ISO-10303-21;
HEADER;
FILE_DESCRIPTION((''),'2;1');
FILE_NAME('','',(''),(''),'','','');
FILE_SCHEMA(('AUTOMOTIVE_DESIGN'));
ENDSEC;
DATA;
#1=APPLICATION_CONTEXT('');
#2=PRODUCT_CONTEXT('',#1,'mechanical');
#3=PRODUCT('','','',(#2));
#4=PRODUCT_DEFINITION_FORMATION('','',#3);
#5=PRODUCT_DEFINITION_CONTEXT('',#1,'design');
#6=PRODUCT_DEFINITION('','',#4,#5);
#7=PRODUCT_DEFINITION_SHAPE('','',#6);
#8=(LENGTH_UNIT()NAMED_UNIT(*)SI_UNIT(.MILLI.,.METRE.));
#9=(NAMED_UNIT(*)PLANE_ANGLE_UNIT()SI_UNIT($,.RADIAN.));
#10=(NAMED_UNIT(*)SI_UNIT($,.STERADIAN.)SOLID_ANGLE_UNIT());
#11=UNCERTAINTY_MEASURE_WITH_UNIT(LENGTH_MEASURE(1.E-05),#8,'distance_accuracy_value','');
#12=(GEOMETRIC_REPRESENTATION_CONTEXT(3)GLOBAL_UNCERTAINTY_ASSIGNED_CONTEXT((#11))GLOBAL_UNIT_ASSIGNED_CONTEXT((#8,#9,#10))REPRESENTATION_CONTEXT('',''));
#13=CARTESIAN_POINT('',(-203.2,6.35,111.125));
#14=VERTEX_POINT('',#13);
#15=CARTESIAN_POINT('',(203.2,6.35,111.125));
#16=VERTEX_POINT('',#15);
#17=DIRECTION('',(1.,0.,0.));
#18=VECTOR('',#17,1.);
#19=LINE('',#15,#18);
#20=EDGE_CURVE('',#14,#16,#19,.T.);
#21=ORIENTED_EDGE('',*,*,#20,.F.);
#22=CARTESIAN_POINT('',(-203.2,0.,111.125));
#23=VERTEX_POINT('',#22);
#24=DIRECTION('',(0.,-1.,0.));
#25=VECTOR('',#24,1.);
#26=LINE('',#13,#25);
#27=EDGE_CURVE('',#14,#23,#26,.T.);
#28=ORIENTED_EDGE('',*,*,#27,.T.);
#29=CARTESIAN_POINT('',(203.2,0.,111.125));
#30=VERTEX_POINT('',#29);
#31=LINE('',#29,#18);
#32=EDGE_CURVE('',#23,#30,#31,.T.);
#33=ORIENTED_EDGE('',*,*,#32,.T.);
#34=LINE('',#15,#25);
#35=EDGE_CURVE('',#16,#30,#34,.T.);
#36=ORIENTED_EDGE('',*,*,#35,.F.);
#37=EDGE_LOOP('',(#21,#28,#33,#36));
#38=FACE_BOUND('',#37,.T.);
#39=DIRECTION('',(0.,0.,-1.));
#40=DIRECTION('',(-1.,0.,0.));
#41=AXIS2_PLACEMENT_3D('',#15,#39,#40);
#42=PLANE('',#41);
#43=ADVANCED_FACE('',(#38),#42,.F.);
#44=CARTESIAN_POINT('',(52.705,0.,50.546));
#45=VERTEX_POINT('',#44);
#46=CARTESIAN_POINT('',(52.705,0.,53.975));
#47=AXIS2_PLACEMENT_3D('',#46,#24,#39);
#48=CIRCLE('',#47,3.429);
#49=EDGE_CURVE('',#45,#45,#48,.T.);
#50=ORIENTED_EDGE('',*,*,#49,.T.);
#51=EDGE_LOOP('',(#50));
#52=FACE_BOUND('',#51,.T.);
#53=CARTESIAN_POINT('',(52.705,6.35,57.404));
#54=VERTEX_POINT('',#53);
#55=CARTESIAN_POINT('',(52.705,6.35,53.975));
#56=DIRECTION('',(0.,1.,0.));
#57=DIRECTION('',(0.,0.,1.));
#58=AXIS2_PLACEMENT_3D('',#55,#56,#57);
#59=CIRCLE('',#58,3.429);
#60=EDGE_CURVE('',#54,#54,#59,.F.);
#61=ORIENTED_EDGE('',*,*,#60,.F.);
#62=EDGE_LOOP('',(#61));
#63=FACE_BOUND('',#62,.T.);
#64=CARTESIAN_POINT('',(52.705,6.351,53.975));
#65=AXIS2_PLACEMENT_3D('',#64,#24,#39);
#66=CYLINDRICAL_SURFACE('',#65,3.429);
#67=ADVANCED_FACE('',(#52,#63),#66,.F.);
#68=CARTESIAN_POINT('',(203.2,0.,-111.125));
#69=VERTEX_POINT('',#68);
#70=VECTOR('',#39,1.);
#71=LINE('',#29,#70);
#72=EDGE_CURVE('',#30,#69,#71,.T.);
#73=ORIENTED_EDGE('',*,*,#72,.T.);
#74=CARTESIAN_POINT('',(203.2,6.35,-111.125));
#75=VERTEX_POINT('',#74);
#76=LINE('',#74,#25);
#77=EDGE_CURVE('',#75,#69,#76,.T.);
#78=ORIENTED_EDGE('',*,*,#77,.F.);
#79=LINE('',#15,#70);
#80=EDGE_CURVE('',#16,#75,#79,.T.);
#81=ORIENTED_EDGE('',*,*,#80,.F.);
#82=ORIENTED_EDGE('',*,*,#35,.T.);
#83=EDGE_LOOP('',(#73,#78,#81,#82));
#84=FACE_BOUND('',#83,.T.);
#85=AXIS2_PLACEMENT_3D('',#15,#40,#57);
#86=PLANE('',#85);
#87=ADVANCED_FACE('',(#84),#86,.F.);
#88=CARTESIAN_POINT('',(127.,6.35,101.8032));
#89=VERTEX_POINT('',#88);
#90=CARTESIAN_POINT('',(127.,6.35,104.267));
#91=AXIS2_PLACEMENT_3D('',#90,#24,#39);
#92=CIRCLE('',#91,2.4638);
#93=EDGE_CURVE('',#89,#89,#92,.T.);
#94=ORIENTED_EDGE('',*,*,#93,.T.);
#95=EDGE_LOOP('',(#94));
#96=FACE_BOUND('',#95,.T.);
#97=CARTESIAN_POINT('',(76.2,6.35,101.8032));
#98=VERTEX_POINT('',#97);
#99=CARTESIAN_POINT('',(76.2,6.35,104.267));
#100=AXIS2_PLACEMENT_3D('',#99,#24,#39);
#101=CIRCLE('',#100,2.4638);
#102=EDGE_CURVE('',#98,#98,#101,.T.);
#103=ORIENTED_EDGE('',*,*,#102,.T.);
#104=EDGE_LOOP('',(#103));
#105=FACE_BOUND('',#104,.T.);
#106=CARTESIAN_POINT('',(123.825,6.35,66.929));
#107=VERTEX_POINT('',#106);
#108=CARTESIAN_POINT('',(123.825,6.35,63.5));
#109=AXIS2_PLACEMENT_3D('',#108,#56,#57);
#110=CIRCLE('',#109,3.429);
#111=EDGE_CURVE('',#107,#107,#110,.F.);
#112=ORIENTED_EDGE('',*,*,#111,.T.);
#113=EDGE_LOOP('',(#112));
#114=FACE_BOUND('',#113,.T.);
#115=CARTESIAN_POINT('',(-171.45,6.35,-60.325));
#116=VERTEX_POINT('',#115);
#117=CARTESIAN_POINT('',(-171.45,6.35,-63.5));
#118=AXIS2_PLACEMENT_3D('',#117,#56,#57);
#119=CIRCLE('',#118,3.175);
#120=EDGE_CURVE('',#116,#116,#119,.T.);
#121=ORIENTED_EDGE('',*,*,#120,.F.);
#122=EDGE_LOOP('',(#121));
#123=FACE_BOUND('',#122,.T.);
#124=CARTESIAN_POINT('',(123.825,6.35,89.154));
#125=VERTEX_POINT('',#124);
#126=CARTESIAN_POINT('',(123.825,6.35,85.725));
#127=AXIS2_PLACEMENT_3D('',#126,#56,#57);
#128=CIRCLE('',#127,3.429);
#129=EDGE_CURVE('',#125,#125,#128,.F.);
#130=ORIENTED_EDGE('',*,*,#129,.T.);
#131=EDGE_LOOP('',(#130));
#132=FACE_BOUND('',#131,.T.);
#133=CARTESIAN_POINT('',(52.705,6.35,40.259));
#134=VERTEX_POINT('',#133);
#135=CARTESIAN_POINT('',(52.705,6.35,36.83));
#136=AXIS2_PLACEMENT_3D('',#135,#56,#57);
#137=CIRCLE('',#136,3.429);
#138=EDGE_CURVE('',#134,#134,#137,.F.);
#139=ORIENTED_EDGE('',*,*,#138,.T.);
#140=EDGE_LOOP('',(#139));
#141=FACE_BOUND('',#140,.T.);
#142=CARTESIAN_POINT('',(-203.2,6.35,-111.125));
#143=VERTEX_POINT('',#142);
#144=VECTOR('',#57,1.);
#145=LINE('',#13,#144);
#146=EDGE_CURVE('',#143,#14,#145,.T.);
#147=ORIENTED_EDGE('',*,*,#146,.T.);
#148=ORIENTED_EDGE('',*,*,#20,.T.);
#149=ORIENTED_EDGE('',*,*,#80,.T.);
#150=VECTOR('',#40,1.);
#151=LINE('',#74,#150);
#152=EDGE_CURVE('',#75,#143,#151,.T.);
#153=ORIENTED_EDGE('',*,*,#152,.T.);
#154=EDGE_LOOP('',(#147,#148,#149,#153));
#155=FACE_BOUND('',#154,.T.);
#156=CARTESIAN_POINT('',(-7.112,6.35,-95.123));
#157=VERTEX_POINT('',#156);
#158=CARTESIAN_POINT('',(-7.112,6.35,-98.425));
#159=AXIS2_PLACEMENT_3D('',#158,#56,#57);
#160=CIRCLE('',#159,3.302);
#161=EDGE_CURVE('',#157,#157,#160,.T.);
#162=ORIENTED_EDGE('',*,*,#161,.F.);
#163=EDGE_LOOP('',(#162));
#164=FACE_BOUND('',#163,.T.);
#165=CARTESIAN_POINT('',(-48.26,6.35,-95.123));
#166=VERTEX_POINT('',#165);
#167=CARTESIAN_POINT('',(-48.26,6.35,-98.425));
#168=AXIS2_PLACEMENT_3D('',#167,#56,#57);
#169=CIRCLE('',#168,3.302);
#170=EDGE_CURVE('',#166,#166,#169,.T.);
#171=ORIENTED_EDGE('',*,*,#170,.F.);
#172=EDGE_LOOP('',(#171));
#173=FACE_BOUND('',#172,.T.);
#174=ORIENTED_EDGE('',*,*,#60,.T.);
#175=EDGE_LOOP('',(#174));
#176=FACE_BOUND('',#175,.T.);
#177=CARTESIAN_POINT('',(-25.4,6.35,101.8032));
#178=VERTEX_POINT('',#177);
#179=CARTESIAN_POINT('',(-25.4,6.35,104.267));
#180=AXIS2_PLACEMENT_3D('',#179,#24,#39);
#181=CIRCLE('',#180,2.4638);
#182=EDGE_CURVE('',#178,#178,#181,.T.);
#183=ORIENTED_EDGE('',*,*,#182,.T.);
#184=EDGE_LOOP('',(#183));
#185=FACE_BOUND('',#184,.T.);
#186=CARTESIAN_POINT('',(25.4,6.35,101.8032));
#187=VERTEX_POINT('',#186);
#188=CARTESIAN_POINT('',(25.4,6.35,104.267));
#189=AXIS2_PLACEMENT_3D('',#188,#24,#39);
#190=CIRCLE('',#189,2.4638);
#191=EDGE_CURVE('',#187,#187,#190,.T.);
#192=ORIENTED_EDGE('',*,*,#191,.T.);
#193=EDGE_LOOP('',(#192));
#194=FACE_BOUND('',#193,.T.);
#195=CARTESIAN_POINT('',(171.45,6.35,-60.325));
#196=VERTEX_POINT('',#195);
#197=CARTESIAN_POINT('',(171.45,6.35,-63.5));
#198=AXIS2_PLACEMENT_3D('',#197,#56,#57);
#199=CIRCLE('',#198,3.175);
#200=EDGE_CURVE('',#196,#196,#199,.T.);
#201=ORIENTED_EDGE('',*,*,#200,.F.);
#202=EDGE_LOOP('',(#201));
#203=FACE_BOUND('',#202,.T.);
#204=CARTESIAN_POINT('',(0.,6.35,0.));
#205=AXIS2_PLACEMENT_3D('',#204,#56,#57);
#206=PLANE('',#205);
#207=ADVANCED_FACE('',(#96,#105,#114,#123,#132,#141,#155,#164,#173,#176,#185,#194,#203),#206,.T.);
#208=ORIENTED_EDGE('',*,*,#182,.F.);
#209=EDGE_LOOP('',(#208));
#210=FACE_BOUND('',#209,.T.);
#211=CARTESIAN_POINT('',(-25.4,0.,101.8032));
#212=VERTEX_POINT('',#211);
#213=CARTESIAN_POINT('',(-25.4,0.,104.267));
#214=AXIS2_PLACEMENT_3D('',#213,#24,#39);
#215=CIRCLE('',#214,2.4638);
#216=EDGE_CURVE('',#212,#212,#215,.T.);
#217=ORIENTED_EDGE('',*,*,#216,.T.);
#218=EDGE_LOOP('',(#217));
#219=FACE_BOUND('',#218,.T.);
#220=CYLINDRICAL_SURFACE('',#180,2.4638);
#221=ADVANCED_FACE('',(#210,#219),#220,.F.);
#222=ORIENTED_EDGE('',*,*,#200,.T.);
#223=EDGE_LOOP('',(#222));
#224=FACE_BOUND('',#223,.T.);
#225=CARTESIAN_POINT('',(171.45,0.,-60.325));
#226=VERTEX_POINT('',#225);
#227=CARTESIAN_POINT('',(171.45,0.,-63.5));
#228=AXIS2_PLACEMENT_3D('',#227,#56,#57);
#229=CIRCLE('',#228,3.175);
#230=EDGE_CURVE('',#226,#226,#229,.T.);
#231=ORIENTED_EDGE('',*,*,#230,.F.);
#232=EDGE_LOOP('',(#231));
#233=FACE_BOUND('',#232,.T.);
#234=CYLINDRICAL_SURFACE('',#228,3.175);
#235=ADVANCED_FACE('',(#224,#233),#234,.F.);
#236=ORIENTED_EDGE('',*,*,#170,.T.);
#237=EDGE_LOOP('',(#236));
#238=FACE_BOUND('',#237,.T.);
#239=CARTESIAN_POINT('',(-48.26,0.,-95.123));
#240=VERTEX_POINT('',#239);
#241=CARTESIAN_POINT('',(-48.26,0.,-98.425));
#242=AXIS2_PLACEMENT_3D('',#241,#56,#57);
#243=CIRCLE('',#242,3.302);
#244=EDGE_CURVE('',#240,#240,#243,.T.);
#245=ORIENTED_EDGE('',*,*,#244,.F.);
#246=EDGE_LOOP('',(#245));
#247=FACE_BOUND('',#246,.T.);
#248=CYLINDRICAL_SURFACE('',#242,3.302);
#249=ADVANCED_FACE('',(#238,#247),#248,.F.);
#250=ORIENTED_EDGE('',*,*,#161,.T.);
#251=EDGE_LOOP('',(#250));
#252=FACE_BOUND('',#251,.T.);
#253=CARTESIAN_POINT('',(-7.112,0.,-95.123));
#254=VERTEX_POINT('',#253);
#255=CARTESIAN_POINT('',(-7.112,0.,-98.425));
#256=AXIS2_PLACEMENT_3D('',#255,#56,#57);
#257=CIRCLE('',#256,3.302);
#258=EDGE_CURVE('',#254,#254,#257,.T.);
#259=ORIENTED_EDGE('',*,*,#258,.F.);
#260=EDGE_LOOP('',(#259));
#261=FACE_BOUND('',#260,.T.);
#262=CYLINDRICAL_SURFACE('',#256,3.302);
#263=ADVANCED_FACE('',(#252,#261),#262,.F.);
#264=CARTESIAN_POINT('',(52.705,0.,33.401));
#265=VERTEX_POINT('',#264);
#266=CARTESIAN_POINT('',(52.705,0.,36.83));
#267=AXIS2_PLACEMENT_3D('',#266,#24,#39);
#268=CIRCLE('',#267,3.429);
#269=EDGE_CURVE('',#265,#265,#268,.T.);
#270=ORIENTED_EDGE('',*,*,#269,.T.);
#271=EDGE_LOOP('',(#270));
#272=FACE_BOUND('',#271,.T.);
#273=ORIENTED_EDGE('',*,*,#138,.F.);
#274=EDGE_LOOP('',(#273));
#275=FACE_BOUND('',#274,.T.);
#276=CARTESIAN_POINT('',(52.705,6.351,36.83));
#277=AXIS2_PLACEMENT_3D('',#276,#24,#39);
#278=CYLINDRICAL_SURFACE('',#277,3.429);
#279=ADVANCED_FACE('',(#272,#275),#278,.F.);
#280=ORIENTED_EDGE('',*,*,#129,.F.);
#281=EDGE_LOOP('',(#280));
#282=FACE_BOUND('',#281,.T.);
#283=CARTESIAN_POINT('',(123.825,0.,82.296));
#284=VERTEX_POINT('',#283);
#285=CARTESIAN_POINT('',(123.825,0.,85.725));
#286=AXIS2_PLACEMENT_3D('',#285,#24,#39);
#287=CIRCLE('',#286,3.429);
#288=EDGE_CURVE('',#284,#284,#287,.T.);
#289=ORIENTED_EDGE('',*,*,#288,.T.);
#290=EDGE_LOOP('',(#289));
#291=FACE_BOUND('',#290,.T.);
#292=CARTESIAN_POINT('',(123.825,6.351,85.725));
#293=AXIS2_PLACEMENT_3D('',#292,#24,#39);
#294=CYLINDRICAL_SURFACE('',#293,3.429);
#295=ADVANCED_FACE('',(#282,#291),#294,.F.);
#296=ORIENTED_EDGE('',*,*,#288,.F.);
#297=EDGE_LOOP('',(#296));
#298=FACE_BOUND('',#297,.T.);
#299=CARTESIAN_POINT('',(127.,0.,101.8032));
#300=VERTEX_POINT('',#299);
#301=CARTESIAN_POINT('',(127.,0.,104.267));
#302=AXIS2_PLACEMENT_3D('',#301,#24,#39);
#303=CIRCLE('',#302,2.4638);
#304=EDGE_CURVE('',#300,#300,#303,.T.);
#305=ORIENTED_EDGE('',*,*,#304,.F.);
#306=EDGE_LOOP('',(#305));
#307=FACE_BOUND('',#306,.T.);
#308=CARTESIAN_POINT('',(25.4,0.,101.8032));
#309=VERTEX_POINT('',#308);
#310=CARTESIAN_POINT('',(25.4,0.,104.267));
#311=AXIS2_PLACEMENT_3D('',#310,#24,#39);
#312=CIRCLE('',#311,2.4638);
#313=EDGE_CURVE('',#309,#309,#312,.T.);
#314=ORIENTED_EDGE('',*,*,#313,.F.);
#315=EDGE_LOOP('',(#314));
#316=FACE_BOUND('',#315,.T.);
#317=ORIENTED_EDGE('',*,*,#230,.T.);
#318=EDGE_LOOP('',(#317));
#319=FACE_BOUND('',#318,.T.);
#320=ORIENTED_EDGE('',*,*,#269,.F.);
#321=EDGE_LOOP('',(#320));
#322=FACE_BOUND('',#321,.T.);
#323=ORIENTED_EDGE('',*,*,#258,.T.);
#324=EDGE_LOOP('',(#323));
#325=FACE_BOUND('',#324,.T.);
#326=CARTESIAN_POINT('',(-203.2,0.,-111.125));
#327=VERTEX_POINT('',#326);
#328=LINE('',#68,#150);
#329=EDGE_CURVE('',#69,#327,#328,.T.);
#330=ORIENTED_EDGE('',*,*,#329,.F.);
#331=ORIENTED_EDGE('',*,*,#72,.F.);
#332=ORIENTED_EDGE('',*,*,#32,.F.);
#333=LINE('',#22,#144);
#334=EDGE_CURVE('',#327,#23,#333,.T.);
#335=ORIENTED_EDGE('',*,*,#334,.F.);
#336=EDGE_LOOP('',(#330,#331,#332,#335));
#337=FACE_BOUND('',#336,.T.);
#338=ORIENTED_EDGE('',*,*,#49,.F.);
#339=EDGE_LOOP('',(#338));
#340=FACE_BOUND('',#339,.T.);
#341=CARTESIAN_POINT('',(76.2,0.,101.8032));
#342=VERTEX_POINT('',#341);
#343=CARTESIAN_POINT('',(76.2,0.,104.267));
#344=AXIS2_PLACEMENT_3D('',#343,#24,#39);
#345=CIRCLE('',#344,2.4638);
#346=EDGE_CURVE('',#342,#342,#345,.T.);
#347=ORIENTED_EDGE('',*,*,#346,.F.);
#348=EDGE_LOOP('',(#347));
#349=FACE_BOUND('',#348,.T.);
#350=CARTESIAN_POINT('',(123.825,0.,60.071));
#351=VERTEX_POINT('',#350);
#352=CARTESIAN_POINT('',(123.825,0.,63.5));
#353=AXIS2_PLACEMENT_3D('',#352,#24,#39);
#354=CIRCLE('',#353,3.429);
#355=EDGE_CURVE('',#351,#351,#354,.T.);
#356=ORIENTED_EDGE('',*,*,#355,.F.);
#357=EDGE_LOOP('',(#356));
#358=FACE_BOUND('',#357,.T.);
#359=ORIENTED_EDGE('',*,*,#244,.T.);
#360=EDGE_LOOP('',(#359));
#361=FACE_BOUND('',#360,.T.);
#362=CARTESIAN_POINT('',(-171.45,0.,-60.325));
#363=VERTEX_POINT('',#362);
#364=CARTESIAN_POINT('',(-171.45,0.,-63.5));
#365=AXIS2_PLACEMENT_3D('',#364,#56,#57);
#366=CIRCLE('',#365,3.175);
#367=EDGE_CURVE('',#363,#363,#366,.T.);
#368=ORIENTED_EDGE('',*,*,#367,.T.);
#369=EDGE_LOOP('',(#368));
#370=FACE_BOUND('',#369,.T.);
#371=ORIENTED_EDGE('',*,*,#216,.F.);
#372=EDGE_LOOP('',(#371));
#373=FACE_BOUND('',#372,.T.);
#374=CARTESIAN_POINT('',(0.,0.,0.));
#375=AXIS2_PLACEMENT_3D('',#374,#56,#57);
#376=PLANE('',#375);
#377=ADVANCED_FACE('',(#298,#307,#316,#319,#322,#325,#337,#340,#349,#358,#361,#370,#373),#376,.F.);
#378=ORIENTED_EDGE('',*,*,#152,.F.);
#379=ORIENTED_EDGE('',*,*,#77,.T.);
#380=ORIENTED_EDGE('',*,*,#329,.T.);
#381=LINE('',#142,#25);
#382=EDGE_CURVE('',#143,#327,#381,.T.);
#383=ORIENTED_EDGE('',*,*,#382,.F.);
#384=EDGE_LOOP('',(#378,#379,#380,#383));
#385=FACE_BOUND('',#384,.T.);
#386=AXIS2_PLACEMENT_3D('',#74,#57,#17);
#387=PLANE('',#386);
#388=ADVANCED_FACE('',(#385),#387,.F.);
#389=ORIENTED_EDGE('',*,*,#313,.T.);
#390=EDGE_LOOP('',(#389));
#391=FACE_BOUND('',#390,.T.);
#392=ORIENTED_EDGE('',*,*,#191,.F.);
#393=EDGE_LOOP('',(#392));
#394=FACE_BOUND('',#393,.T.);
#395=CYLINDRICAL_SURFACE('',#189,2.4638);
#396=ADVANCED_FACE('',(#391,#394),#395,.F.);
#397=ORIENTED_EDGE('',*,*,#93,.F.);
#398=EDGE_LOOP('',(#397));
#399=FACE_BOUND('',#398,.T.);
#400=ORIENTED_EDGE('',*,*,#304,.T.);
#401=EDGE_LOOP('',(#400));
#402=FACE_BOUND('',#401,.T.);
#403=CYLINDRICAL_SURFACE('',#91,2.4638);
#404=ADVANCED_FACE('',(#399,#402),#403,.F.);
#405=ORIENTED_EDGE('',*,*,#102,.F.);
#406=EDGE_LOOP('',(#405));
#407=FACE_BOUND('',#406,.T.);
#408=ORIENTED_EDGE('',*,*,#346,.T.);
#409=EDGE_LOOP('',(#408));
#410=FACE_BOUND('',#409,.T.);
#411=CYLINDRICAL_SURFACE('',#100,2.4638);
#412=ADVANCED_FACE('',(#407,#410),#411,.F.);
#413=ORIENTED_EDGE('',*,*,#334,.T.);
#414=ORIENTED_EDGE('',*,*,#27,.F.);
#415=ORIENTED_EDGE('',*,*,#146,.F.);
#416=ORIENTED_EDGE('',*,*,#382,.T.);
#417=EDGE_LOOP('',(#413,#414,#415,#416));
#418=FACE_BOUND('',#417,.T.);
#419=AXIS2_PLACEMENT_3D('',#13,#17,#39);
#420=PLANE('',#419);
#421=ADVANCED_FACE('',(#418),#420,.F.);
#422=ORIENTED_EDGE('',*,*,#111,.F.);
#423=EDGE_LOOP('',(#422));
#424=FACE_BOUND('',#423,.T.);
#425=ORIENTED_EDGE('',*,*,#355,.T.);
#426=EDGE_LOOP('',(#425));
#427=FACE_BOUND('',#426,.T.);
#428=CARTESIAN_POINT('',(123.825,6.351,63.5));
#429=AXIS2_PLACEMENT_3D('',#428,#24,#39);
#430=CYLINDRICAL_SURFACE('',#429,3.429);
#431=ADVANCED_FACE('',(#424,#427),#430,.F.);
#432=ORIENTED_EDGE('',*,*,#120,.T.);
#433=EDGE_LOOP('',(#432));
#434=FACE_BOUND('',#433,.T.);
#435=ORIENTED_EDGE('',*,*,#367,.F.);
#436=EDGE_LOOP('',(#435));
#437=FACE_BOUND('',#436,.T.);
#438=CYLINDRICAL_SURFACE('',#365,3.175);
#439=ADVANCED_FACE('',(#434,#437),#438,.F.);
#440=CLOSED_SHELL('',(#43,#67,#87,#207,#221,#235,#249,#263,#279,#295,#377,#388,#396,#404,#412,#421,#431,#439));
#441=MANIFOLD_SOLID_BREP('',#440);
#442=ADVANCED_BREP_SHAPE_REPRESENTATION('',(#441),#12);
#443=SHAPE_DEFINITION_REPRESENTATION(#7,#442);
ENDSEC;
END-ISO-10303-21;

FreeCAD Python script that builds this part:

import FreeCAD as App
import Part
import Sketcher
Q = App.Units.Quantity

doc = App.newDocument("Part")
body = doc.addObject("PartDesign::Body", "Body")

# Sketch on XZ plane
sketch1 = body.newObject("Sketcher::SketchObject", "Sketch")
sketch1.AttachmentSupport = (doc.getObject("XZ_Plane"), [""])
sketch1.MapMode = "FlatFace"
sketch1.addGeometry([
    Part.LineSegment(App.Vector(-203, -111, 0), App.Vector(-203, 111, 0)),
    Part.LineSegment(App.Vector(-203, 111, 0), App.Vector(203, 111, 0)),
    Part.LineSegment(App.Vector(203, 111, 0), App.Vector(203, -111, 0)),
    Part.LineSegment(App.Vector(203, -111, 0), App.Vector(-203, -111, 0)),
], False)
sketch1.addConstraint([
    Sketcher.Constraint("Coincident", 0, 2, 1, 1),
    Sketcher.Constraint("Coincident", 1, 2, 2, 1),
    Sketcher.Constraint("Coincident", 2, 2, 3, 1),
    Sketcher.Constraint("Coincident", 3, 2, 0, 1),
    Sketcher.Constraint("Vertical", 0),
    Sketcher.Constraint("Horizontal", 1),
    Sketcher.Constraint("Vertical", 2),
    Sketcher.Constraint("Horizontal", 3),
    Sketcher.Constraint("Symmetric", 0, 2, 2, 2, -1, 1),
    Sketcher.Constraint("DistanceX", 1, 1, 1, 2, Q("16 in")),
    Sketcher.Constraint("DistanceY", 0, 1, 0, 2, Q("8.75 in")),
])
pad1 = body.newObject("PartDesign::Pad", "Pad")
pad1.Profile = sketch1
pad1.Length = Q("0.25 in")
pad1.Reversed = True

# Sketch on XZ plane
sketch2 = body.newObject("Sketcher::SketchObject", "Sketch001")
sketch2.AttachmentSupport = (doc.getObject("XZ_Plane"), [""])
sketch2.MapMode = "FlatFace"
sketch2.AttachmentOffset = App.Placement(App.Vector(0, 0, -0.25 * 25.4), App.Rotation())
sketch2.addGeometry([
    Part.Circle(App.Vector(-48.3, -98.4, 0), App.Vector(0, 0, 1), 3.3),
    Part.Circle(App.Vector(-7.1, -98.4, 0), App.Vector(0, 0, 1), 3.3),
    Part.Circle(App.Vector(-171.4, -63.5, 0), App.Vector(0, 0, 1), 3.2),
    Part.Circle(App.Vector(171.4, -63.5, 0), App.Vector(0, 0, 1), 3.2),
], False)
sketch2.addConstraint([
    Sketcher.Constraint("Equal", 0, 1),
    Sketcher.Constraint("Equal", 2, 3),
    Sketcher.Constraint("Symmetric", 2, 3, 3, 3, -2),
    Sketcher.Constraint("Horizontal", 0, 3, 1, 3),
    Sketcher.Constraint("Diameter", 0, Q("0.26 in")),
    Sketcher.Constraint("Diameter", 2, Q("0.25 in")),
    Sketcher.Constraint("DistanceX", 0, 3, -1, 1, Q("1.9 in")),
    Sketcher.Constraint("DistanceY", 2, 3, -1, 1, Q("2.5 in")),
    Sketcher.Constraint("DistanceX", 2, 3, 3, 3, Q("13.5 in")),
    Sketcher.Constraint("DistanceX", 1, 3, -1, 1, Q("0.28 in")),
    Sketcher.Constraint("DistanceY", 0, 3, -1, 1, Q("3.875 in")),
])
pocket1 = body.newObject("PartDesign::Pocket", "Pocket")
pocket1.Profile = sketch2
pocket1.Length = Q("0.25 in")
pocket1.Reversed = True

# Sketch on XZ plane
sketch3 = body.newObject("Sketcher::SketchObject", "Sketch002")
sketch3.AttachmentSupport = (doc.getObject("XZ_Plane"), [""])
sketch3.MapMode = "FlatFace"
sketch3.addGeometry([
    Part.Circle(App.Vector(127, 104.3, 0), App.Vector(0, 0, 1), 2.5),
    Part.Circle(App.Vector(76.2, 104.3, 0), App.Vector(0, 0, 1), 2.5),
    Part.Circle(App.Vector(25.4, 104.3, 0), App.Vector(0, 0, 1), 2.5),
    Part.Circle(App.Vector(-25.4, 104.3, 0), App.Vector(0, 0, 1), 2.5),
], False)
sketch3.addConstraint([
    Sketcher.Constraint("Equal", 0, 1),
    Sketcher.Constraint("Equal", 1, 2),
    Sketcher.Constraint("Equal", 2, 3),
    Sketcher.Constraint("Symmetric", 2, 3, 3, 3, -2),
    Sketcher.Constraint("Horizontal", 0, 3, 1, 3),
    Sketcher.Constraint("Horizontal", 1, 3, 2, 3),
    Sketcher.Constraint("Diameter", 0, Q("0.194 in")),
    Sketcher.Constraint("DistanceX", -1, 1, 0, 3, Q("5 in")),
    Sketcher.Constraint("DistanceX", -1, 1, 1, 3, Q("3 in")),
    Sketcher.Constraint("DistanceX", -1, 1, 2, 3, Q("1 in")),
    Sketcher.Constraint("DistanceY", -1, 1, 0, 3, Q("4.105 in")),
])
pocket2 = body.newObject("PartDesign::Pocket", "Pocket001")
pocket2.Profile = sketch3
pocket2.Type = "ThroughAll"

# Sketch on XZ plane
sketch4 = body.newObject("Sketcher::SketchObject", "Sketch003")
sketch4.AttachmentSupport = (doc.getObject("XZ_Plane"), [""])
sketch4.MapMode = "FlatFace"
sketch4.addGeometry(Part.Circle(App.Vector(52.7, 36.8, 0), App.Vector(0, 0, 1), 3.4), False)
sketch4.addConstraint([
    Sketcher.Constraint("Diameter", 0, Q("0.27 in")),
    Sketcher.Constraint("DistanceY", -1, 1, 0, 3, Q("1.45 in")),
    Sketcher.Constraint("DistanceX", -1, 1, 0, 3, Q("2.075 in")),
])
pocket3 = body.newObject("PartDesign::Pocket", "Pocket002")
pocket3.Profile = sketch4
pocket3.Type = "UpToFirst"

# Sketch on XZ plane
sketch5 = body.newObject("Sketcher::SketchObject", "Sketch004")
sketch5.AttachmentSupport = (doc.getObject("XZ_Plane"), [""])
sketch5.MapMode = "FlatFace"
sketch5.addGeometry(Part.Circle(App.Vector(52.7, 54, 0), App.Vector(0, 0, 1), 3.4), False)
sketch5.addConstraint([
    Sketcher.Constraint("Diameter", 0, Q("0.27 in")),
    Sketcher.Constraint("DistanceX", -1, 1, 0, 3, Q("2.075 in")),
    Sketcher.Constraint("DistanceY", -1, 1, 0, 3, Q("2.125 in")),
])
pocket4 = body.newObject("PartDesign::Pocket", "Pocket003")
pocket4.Profile = sketch5
pocket4.Type = "UpToFirst"

# Sketch on XZ plane
sketch6 = body.newObject("Sketcher::SketchObject", "Sketch005")
sketch6.AttachmentSupport = (doc.getObject("XZ_Plane"), [""])
sketch6.MapMode = "FlatFace"
sketch6.addGeometry(Part.Circle(App.Vector(123.8, 63.5, 0), App.Vector(0, 0, 1), 3.4), False)
sketch6.addConstraint([
    Sketcher.Constraint("Diameter", 0, Q("0.27 in")),
    Sketcher.Constraint("DistanceY", -1, 1, 0, 3, Q("2.5 in")),
    Sketcher.Constraint("DistanceX", -1, 1, 0, 3, Q("4.875 in")),
])
pocket5 = body.newObject("PartDesign::Pocket", "Pocket004")
pocket5.Profile = sketch6
pocket5.Type = "UpToFirst"

# Sketch on XZ plane
sketch7 = body.newObject("Sketcher::SketchObject", "Sketch006")
sketch7.AttachmentSupport = (doc.getObject("XZ_Plane"), [""])
sketch7.MapMode = "FlatFace"
sketch7.addGeometry(Part.Circle(App.Vector(123.8, 85.7, 0), App.Vector(0, 0, 1), 3.4), False)
sketch7.addConstraint([
    Sketcher.Constraint("Diameter", 0, Q("0.27 in")),
    Sketcher.Constraint("DistanceX", -1, 1, 0, 3, Q("4.875 in")),
    Sketcher.Constraint("DistanceY", -1, 1, 0, 3, Q("3.375 in")),
])
pocket6 = body.newObject("PartDesign::Pocket", "Pocket005")
pocket6.Profile = sketch7
pocket6.Type = "UpToFirst"

doc.recompute()
